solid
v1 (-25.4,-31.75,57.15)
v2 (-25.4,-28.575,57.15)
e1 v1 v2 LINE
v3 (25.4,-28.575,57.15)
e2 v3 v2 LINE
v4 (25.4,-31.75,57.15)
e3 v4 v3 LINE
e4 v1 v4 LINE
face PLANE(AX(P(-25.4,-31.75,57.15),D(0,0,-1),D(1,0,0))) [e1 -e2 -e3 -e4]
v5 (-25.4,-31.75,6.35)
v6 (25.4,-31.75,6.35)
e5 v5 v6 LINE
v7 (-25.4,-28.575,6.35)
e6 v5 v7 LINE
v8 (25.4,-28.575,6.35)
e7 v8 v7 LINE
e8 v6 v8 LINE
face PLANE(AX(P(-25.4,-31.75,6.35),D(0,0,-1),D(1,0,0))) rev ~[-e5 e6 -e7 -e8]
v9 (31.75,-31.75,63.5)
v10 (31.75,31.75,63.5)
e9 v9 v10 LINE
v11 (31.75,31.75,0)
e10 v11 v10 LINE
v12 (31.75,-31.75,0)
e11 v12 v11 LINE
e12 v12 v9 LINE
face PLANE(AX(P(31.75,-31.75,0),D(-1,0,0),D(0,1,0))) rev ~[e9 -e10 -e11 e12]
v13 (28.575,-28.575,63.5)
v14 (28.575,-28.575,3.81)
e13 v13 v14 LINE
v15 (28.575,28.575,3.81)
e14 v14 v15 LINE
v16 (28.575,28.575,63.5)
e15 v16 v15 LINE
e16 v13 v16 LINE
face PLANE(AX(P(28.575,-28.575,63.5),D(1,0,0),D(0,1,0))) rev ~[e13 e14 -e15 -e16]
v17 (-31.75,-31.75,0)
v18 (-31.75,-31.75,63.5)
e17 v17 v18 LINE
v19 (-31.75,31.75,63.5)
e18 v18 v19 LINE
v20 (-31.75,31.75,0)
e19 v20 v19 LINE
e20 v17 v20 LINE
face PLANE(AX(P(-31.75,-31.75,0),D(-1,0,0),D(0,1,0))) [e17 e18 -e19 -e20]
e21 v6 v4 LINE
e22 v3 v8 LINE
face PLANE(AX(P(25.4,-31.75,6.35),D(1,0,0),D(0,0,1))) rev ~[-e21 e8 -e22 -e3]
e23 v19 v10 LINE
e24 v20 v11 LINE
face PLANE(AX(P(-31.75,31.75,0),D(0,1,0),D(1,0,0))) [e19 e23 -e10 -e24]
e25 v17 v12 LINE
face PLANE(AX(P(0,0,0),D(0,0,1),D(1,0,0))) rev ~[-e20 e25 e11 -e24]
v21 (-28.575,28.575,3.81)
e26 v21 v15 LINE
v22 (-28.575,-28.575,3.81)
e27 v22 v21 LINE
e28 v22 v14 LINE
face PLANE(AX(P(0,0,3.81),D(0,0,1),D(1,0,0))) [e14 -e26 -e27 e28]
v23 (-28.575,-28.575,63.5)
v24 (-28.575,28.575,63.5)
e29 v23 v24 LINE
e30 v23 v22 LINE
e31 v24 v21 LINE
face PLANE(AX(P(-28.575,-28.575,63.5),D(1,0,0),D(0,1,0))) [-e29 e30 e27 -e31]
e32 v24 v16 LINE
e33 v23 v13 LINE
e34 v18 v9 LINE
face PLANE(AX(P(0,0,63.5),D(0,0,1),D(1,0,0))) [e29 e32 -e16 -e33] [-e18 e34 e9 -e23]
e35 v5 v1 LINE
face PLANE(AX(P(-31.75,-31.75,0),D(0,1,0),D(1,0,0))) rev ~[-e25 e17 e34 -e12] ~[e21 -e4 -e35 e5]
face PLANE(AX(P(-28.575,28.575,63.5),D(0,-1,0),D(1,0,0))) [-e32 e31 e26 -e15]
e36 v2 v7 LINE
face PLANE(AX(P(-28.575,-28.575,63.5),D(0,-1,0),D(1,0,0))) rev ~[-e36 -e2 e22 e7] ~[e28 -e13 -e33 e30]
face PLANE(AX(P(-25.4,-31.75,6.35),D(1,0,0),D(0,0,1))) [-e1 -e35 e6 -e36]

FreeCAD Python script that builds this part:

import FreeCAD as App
import Part
import Sketcher
Q = App.Units.Quantity


def add_polygon(sketch, points):
    """Adds a closed chain of lines whose ends are joined by coincident constraints."""
    first, n = sketch.GeometryCount, len(points)
    for a, b in zip(points, points[1:] + points[:1]):
        sketch.addGeometry(Part.LineSegment(App.Vector(*a, 0), App.Vector(*b, 0)), False)
    for i in range(n):
        sketch.addConstraint(Sketcher.Constraint("Coincident", first + i, 2, first + (i + 1) % n, 1))

doc = App.newDocument("Part")
body = doc.addObject("PartDesign::Body", "Body")

# Sketch on XY plane
sketch1 = doc.addObject("Sketcher::SketchObject", "Sketch")
body.addObject(sketch1)
sketch1.AttachmentSupport = (doc.XY_Plane, [""])
sketch1.MapMode = "FlatFace"
add_polygon(sketch1, [(-31.75, 31.75), (-31.75, -31.75), (31.75, -31.75), (31.75, 31.75)])  # lines 0-3
sketch1.addConstraint(Sketcher.Constraint("Vertical", 0))
sketch1.addConstraint(Sketcher.Constraint("Horizontal", 1))
sketch1.addConstraint(Sketcher.Constraint("Vertical", 2))
sketch1.addConstraint(Sketcher.Constraint("Horizontal", 3))
sketch1.addConstraint(Sketcher.Constraint("Symmetric", 0, 2, 2, 2, -1, 1))
sketch1.addConstraint(Sketcher.Constraint("Equal", 3, 0))
sketch1.addConstraint(Sketcher.Constraint("DistanceX", 1, 1, 1, 2, Q("2.5 in")))
pad1 = doc.addObject("PartDesign::Pad", "Pad")
body.addObject(pad1)
pad1.Profile = sketch1
pad1.Length = Q("2.5 in")

# Sketch on XZ plane
sketch2 = doc.addObject("Sketcher::SketchObject", "Sketch001")
body.addObject(sketch2)
sketch2.AttachmentSupport = (doc.XZ_Plane, [""])
sketch2.MapMode = "FlatFace"
sketch2.AttachmentOffset = App.Placement(App.Vector(0, 0, 1.25 * 25.4), App.Rotation())
add_polygon(sketch2, [(-25.4, 57.15), (-25.4, 6.35), (25.4, 6.35), (25.4, 57.15)])  # lines 0-3
sketch2.addConstraint(Sketcher.Constraint("Vertical", 0))
sketch2.addConstraint(Sketcher.Constraint("Horizontal", 1))
sketch2.addConstraint(Sketcher.Constraint("Vertical", 2))
sketch2.addConstraint(Sketcher.Constraint("Horizontal", 3))
sketch2.addConstraint(Sketcher.Constraint("Equal", 3, 0))
sketch2.addConstraint(Sketcher.Constraint("DistanceX", 1, 1, 1, 2, Q("2 in")))
sketch2.addConstraint(Sketcher.Constraint("DistanceX", 0, 2, -1, 1, Q("1 in")))
sketch2.addConstraint(Sketcher.Constraint("DistanceY", -1, 1, 0, 2, Q("0.25 in")))
pocket1 = doc.addObject("PartDesign::Pocket", "Pocket")
body.addObject(pocket1)
pocket1.Profile = sketch2
pocket1.Length = Q("2.25 in")

# Sketch on XY plane
sketch3 = doc.addObject("Sketcher::SketchObject", "Sketch002")
body.addObject(sketch3)
sketch3.AttachmentSupport = (doc.XY_Plane, [""])
sketch3.MapMode = "FlatFace"
sketch3.AttachmentOffset = App.Placement(App.Vector(0, 0, 2.5 * 25.4), App.Rotation())
add_polygon(sketch3, [(-28.575, 28.575), (-28.575, -28.575), (28.575, -28.575), (28.575, 28.575)])  # lines 0-3
sketch3.addConstraint(Sketcher.Constraint("Vertical", 0))
sketch3.addConstraint(Sketcher.Constraint("Horizontal", 1))
sketch3.addConstraint(Sketcher.Constraint("Vertical", 2))
sketch3.addConstraint(Sketcher.Constraint("Horizontal", 3))
sketch3.addConstraint(Sketcher.Constraint("Symmetric", 0, 2, 2, 2, -1, 1))
sketch3.addConstraint(Sketcher.Constraint("Equal", 3, 0))
sketch3.addConstraint(Sketcher.Constraint("DistanceX", 1, 1, 1, 2, Q("2.25 in")))
pocket2 = doc.addObject("PartDesign::Pocket", "Pocket001")
body.addObject(pocket2)
pocket2.Profile = sketch3
pocket2.Length = Q("2.35 in")

doc.recompute()
